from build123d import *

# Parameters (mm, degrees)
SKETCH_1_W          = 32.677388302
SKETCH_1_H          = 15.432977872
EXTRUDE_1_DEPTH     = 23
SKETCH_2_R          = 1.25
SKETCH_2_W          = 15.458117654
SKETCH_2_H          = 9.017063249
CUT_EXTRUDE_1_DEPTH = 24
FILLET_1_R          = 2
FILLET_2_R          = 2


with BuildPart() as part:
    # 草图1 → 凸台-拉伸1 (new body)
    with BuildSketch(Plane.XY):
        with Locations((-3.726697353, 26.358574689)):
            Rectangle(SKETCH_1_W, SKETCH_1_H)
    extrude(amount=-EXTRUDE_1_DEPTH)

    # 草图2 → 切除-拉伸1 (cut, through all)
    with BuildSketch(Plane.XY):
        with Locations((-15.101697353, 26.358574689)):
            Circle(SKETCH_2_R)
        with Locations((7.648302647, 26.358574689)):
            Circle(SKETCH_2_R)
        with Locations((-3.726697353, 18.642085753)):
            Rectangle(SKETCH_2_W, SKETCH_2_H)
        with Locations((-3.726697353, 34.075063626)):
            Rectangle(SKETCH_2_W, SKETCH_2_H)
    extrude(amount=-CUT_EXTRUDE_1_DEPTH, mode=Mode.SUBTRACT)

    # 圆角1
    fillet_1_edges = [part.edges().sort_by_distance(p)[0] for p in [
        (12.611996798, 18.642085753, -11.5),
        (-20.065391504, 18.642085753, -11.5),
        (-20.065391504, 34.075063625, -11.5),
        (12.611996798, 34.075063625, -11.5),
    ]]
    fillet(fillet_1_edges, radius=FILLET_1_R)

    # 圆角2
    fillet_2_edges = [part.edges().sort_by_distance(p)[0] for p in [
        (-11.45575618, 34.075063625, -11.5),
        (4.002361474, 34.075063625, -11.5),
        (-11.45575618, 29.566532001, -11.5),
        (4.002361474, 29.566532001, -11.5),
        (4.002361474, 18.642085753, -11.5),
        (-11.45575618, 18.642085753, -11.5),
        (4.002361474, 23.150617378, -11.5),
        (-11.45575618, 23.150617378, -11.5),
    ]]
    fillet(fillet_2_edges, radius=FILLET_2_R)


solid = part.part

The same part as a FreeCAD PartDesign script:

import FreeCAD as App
import Part
import Sketcher
Q = App.Units.Quantity


def edges_at(feature, points):
    """Names of the edges that pass closest to the given points."""
    edges = feature.Shape.Edges
    near = lambda p: min(range(len(edges)), key=lambda i: edges[i].distToShape(Part.Vertex(*p))[0])
    return sorted({f"Edge{near(p) + 1}" for p in points})

doc = App.newDocument("Part")
body = doc.addObject("PartDesign::Body", "Body")

# Sketch on XY plane
sketch1 = doc.addObject("Sketcher::SketchObject", "Sketch")
body.addObject(sketch1)
sketch1.AttachmentSupport = (doc.XY_Plane, [""])
sketch1.MapMode = "FlatFace"
sketch1.addGeometry([
    Part.LineSegment(App.Vector(-20, 34, 0), App.Vector(-20, 19, 0)),
    Part.LineSegment(App.Vector(-20, 19, 0), App.Vector(13, 19, 0)),
    Part.LineSegment(App.Vector(13, 19, 0), App.Vector(13, 34, 0)),
    Part.LineSegment(App.Vector(13, 34, 0), App.Vector(-20, 34, 0)),
], False)
sketch1.addConstraint([
    Sketcher.Constraint("Coincident", 0, 2, 1, 1),
    Sketcher.Constraint("Coincident", 1, 2, 2, 1),
    Sketcher.Constraint("Coincident", 2, 2, 3, 1),
    Sketcher.Constraint("Coincident", 3, 2, 0, 1),
    Sketcher.Constraint("Vertical", 0),
    Sketcher.Constraint("Horizontal", 1),
    Sketcher.Constraint("Vertical", 2),
    Sketcher.Constraint("Horizontal", 3),
    Sketcher.Constraint("DistanceX", 1, 1, 1, 2, Q("32.677388 mm")),
    Sketcher.Constraint("DistanceY", 0, 2, 0, 1, Q("15.432978 mm")),
    Sketcher.Constraint("DistanceX", 0, 2, -1, 1, Q("20.065392 mm")),
    Sketcher.Constraint("DistanceY", -1, 1, 0, 2, Q("18.642086 mm")),
])
pad1 = doc.addObject("PartDesign::Pad", "Pad")
body.addObject(pad1)
pad1.Profile = sketch1
pad1.Length = 23
pad1.Reversed = True

# Sketch on XY plane
sketch2 = doc.addObject("Sketcher::SketchObject", "Sketch001")
body.addObject(sketch2)
sketch2.AttachmentSupport = (doc.XY_Plane, [""])
sketch2.MapMode = "FlatFace"
sketch2.addGeometry([
    Part.Circle(App.Vector(-15.1, 26.4, 0), App.Vector(0, 0, 1), 1.2),  # 0
    Part.Circle(App.Vector(7.6, 26.4, 0), App.Vector(0, 0, 1), 1.2),  # 1
    Part.LineSegment(App.Vector(-11.5, 23.2, 0), App.Vector(-11.5, 14.1, 0)),  # 2
    Part.LineSegment(App.Vector(-11.5, 14.1, 0), App.Vector(4, 14.1, 0)),  # 3
    Part.LineSegment(App.Vector(4, 14.1, 0), App.Vector(4, 23.2, 0)),  # 4
    Part.LineSegment(App.Vector(4, 23.2, 0), App.Vector(-11.5, 23.2, 0)),  # 5
    Part.LineSegment(App.Vector(-11.5, 38.6, 0), App.Vector(-11.5, 29.6, 0)),  # 6
    Part.LineSegment(App.Vector(-11.5, 29.6, 0), App.Vector(4, 29.6, 0)),  # 7
    Part.LineSegment(App.Vector(4, 29.6, 0), App.Vector(4, 38.6, 0)),  # 8
    Part.LineSegment(App.Vector(4, 38.6, 0), App.Vector(-11.5, 38.6, 0)),  # 9
], False)
sketch2.addConstraint([
    Sketcher.Constraint("Coincident", 2, 2, 3, 1),
    Sketcher.Constraint("Coincident", 3, 2, 4, 1),
    Sketcher.Constraint("Coincident", 4, 2, 5, 1),
    Sketcher.Constraint("Coincident", 5, 2, 2, 1),
    Sketcher.Constraint("Coincident", 6, 2, 7, 1),
    Sketcher.Constraint("Coincident", 7, 2, 8, 1),
    Sketcher.Constraint("Coincident", 8, 2, 9, 1),
    Sketcher.Constraint("Coincident", 9, 2, 6, 1),
    Sketcher.Constraint("Vertical", 2),
    Sketcher.Constraint("Horizontal", 3),
    Sketcher.Constraint("Vertical", 4),
    Sketcher.Constraint("Horizontal", 5),
    Sketcher.Constraint("Vertical", 6),
    Sketcher.Constraint("Horizontal", 7),
    Sketcher.Constraint("Vertical", 8),
    Sketcher.Constraint("Horizontal", 9),
    Sketcher.Constraint("Equal", 0, 1),
    Sketcher.Constraint("Horizontal", 0, 3, 1, 3),
    Sketcher.Constraint("Vertical", 5, 2, 6, 2),
    Sketcher.Constraint("Vertical", 4, 2, 7, 2),
    Sketcher.Constraint("Equal", 4, 6),
    Sketcher.Constraint("Diameter", 0, Q("2.5 mm")),
    Sketcher.Constraint("DistanceX", 0, 3, 1, 3, Q("22.75 mm")),
    Sketcher.Constraint("DistanceX", 3, 1, 3, 2, Q("15.458118 mm")),
    Sketcher.Constraint("DistanceY", 2, 2, 2, 1, Q("9.017063 mm")),
    Sketcher.Constraint("DistanceX", -1, 1, 3, 2, Q("4.002361 mm")),
    Sketcher.Constraint("DistanceX", 0, 3, 2, 2, Q("3.645941 mm")),
    Sketcher.Constraint("DistanceY", 2, 2, 0, 3, Q("12.225021 mm")),
    Sketcher.Constraint("DistanceY", 1, 3, 8, 2, Q("12.225021 mm")),
    Sketcher.Constraint("DistanceY", -1, 1, 0, 3, Q("26.358575 mm")),
])
pocket1 = doc.addObject("PartDesign::Pocket", "Pocket")
body.addObject(pocket1)
pocket1.Profile = sketch2
pocket1.Type = "ThroughAll"
doc.recompute()

fillet = doc.addObject("PartDesign::Fillet", "Fillet")
body.addObject(fillet)
fillet.Base = (pocket1, edges_at(pocket1, [
    (12.612, 18.642, -11.5),
    (-20.065, 18.642, -11.5),
    (-20.065, 34.075, -11.5),
    (12.612, 34.075, -11.5),
]))
fillet.Radius = 2
doc.recompute()

fillet2 = doc.addObject("PartDesign::Fillet", "Fillet001")
body.addObject(fillet2)
fillet2.Base = (fillet, edges_at(fillet, [
    (-11.456, 34.075, -11.5),
    (4.002, 34.075, -11.5),
    (-11.456, 29.567, -11.5),
    (4.002, 29.567, -11.5),
    (4.002, 18.642, -11.5),
    (-11.456, 18.642, -11.5),
    (4.002, 23.151, -11.5),
    (-11.456, 23.151, -11.5),
]))
fillet2.Radius = 2

doc.recompute()
